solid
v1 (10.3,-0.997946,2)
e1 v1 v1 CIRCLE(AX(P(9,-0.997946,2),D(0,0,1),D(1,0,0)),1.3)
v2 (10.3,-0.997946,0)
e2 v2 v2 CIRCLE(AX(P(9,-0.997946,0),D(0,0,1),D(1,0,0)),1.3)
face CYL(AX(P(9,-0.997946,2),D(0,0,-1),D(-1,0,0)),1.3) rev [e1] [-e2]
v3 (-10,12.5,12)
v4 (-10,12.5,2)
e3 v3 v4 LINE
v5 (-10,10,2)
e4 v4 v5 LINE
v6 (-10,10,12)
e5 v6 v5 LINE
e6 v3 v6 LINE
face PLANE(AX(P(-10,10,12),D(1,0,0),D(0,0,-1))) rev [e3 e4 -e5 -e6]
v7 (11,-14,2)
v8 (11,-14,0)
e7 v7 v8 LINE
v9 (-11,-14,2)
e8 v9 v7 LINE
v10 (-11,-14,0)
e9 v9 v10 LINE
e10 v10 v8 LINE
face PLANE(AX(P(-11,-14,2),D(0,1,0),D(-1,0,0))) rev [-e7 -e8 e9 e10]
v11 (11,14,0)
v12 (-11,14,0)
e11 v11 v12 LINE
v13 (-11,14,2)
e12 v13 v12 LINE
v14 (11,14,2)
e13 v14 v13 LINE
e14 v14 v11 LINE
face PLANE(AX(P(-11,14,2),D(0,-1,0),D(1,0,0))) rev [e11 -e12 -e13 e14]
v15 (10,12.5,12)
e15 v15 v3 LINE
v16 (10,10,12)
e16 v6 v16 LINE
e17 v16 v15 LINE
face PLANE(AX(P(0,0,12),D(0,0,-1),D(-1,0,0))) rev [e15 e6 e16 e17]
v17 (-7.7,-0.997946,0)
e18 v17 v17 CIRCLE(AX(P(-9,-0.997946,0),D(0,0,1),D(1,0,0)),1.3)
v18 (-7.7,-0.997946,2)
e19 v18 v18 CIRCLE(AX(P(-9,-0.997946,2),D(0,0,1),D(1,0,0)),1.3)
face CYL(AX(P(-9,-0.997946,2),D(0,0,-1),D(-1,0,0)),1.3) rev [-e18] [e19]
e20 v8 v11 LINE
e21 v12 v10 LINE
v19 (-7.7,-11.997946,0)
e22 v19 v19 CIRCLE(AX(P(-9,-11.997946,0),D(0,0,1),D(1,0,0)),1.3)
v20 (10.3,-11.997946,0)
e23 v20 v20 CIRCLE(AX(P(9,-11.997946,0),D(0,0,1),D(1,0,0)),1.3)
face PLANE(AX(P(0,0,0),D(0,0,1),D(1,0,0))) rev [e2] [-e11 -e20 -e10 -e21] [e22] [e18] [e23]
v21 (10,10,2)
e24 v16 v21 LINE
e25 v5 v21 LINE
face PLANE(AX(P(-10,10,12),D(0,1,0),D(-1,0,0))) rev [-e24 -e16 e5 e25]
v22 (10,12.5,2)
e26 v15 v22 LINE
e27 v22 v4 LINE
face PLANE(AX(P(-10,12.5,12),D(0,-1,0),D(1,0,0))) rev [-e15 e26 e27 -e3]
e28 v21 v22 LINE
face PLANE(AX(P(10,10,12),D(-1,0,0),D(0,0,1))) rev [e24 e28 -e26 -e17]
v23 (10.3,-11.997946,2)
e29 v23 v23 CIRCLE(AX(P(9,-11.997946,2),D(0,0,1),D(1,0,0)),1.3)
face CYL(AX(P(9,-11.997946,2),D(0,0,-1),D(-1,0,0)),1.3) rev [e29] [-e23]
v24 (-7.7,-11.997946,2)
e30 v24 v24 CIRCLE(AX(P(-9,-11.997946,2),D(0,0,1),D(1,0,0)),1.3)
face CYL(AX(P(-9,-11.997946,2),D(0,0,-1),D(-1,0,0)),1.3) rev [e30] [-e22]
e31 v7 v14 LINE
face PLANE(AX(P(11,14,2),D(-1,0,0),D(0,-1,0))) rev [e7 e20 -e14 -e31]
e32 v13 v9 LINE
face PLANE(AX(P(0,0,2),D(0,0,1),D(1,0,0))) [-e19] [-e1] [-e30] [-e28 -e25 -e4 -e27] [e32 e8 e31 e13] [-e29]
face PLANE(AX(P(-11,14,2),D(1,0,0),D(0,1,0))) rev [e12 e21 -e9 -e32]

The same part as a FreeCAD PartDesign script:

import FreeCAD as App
import Part
import Sketcher

V = App.Vector


def add_polygon(sketch, points):
    """Adds a closed chain of lines whose ends are joined by coincident constraints."""
    first, n = sketch.GeometryCount, len(points)
    for a, b in zip(points, points[1:] + points[:1]):
        sketch.addGeometry(Part.LineSegment(App.Vector(*a, 0), App.Vector(*b, 0)), False)
    for i in range(n):
        sketch.addConstraint(Sketcher.Constraint("Coincident", first + i, 2, first + (i + 1) % n, 1))

doc = App.newDocument("Part")
body = doc.addObject("PartDesign::Body", "Body")

# Sketch on XY plane
sketch1 = doc.addObject("Sketcher::SketchObject", "Sketch")
body.addObject(sketch1)
sketch1.AttachmentSupport = (doc.XY_Plane, [""])
sketch1.MapMode = "FlatFace"
add_polygon(sketch1, [(-11, 14), (-11, -14), (11, -14), (11, 14)])  # lines 0-3
sketch1.addGeometry(Part.Circle(V(-9, -12, 0), V(0, 0, 1), 1.3), False)  # 4
sketch1.addGeometry(Part.Circle(V(9, -12, 0), V(0, 0, 1), 1.3), False)  # 5
sketch1.addGeometry(Part.Circle(V(-9, -1, 0), V(0, 0, 1), 1.3), False)  # 6
sketch1.addGeometry(Part.Circle(V(9, -1, 0), V(0, 0, 1), 1.3), False)  # 7
sketch1.addConstraint([
    Sketcher.Constraint("Vertical", 0),
    Sketcher.Constraint("Horizontal", 1),
    Sketcher.Constraint("Vertical", 2),
    Sketcher.Constraint("Horizontal", 3),
    Sketcher.Constraint("Equal", 4, 5),
    Sketcher.Constraint("Equal", 5, 6),
    Sketcher.Constraint("Equal", 6, 7),
    Sketcher.Constraint("Symmetric", 0, 2, 2, 2, -1, 1),
    Sketcher.Constraint("Symmetric", 4, 3, 5, 3, -2),
    Sketcher.Constraint("Symmetric", 6, 3, 7, 3, -2),
    Sketcher.Constraint("Vertical", 4, 3, 6, 3),
    Sketcher.Constraint("Diameter", 4, 2.6),
    Sketcher.Constraint("DistanceX", 1, 1, 1, 2, 22.0),
    Sketcher.Constraint("DistanceY", 0, 2, 0, 1, 28.0),
    Sketcher.Constraint("DistanceX", 4, 3, -1, 1, 9.0),
    Sketcher.Constraint("DistanceY", 4, 3, 6, 3, 11.0),
    Sketcher.Constraint("DistanceY", 4, 3, -1, 1, 11.997946),
])
pad1 = doc.addObject("PartDesign::Pad", "Pad")
body.addObject(pad1)
pad1.Profile = sketch1
pad1.Length = 2

# Sketch on XY plane
sketch2 = doc.addObject("Sketcher::SketchObject", "Sketch001")
body.addObject(sketch2)
sketch2.AttachmentSupport = (doc.XY_Plane, [""])
sketch2.MapMode = "FlatFace"
sketch2.AttachmentOffset = App.Placement(V(0, 0, 2), App.Rotation())
add_polygon(sketch2, [(-10, 12.5), (-10, 10), (10, 10), (10, 12.5)])  # lines 0-3
sketch2.addConstraint([
    Sketcher.Constraint("Vertical", 0),
    Sketcher.Constraint("Horizontal", 1),
    Sketcher.Constraint("Vertical", 2),
    Sketcher.Constraint("Horizontal", 3),
    Sketcher.Constraint("DistanceX", 1, 1, 1, 2, 20.0),
    Sketcher.Constraint("DistanceY", 0, 2, 0, 1, 2.5),
    Sketcher.Constraint("DistanceX", 0, 2, -1, 1, 10.0),
    Sketcher.Constraint("DistanceY", -1, 1, 0, 2, 10.0),
])
pad2 = doc.addObject("PartDesign::Pad", "Pad001")
body.addObject(pad2)
pad2.Profile = sketch2
pad2.Length = 10

doc.recompute()
